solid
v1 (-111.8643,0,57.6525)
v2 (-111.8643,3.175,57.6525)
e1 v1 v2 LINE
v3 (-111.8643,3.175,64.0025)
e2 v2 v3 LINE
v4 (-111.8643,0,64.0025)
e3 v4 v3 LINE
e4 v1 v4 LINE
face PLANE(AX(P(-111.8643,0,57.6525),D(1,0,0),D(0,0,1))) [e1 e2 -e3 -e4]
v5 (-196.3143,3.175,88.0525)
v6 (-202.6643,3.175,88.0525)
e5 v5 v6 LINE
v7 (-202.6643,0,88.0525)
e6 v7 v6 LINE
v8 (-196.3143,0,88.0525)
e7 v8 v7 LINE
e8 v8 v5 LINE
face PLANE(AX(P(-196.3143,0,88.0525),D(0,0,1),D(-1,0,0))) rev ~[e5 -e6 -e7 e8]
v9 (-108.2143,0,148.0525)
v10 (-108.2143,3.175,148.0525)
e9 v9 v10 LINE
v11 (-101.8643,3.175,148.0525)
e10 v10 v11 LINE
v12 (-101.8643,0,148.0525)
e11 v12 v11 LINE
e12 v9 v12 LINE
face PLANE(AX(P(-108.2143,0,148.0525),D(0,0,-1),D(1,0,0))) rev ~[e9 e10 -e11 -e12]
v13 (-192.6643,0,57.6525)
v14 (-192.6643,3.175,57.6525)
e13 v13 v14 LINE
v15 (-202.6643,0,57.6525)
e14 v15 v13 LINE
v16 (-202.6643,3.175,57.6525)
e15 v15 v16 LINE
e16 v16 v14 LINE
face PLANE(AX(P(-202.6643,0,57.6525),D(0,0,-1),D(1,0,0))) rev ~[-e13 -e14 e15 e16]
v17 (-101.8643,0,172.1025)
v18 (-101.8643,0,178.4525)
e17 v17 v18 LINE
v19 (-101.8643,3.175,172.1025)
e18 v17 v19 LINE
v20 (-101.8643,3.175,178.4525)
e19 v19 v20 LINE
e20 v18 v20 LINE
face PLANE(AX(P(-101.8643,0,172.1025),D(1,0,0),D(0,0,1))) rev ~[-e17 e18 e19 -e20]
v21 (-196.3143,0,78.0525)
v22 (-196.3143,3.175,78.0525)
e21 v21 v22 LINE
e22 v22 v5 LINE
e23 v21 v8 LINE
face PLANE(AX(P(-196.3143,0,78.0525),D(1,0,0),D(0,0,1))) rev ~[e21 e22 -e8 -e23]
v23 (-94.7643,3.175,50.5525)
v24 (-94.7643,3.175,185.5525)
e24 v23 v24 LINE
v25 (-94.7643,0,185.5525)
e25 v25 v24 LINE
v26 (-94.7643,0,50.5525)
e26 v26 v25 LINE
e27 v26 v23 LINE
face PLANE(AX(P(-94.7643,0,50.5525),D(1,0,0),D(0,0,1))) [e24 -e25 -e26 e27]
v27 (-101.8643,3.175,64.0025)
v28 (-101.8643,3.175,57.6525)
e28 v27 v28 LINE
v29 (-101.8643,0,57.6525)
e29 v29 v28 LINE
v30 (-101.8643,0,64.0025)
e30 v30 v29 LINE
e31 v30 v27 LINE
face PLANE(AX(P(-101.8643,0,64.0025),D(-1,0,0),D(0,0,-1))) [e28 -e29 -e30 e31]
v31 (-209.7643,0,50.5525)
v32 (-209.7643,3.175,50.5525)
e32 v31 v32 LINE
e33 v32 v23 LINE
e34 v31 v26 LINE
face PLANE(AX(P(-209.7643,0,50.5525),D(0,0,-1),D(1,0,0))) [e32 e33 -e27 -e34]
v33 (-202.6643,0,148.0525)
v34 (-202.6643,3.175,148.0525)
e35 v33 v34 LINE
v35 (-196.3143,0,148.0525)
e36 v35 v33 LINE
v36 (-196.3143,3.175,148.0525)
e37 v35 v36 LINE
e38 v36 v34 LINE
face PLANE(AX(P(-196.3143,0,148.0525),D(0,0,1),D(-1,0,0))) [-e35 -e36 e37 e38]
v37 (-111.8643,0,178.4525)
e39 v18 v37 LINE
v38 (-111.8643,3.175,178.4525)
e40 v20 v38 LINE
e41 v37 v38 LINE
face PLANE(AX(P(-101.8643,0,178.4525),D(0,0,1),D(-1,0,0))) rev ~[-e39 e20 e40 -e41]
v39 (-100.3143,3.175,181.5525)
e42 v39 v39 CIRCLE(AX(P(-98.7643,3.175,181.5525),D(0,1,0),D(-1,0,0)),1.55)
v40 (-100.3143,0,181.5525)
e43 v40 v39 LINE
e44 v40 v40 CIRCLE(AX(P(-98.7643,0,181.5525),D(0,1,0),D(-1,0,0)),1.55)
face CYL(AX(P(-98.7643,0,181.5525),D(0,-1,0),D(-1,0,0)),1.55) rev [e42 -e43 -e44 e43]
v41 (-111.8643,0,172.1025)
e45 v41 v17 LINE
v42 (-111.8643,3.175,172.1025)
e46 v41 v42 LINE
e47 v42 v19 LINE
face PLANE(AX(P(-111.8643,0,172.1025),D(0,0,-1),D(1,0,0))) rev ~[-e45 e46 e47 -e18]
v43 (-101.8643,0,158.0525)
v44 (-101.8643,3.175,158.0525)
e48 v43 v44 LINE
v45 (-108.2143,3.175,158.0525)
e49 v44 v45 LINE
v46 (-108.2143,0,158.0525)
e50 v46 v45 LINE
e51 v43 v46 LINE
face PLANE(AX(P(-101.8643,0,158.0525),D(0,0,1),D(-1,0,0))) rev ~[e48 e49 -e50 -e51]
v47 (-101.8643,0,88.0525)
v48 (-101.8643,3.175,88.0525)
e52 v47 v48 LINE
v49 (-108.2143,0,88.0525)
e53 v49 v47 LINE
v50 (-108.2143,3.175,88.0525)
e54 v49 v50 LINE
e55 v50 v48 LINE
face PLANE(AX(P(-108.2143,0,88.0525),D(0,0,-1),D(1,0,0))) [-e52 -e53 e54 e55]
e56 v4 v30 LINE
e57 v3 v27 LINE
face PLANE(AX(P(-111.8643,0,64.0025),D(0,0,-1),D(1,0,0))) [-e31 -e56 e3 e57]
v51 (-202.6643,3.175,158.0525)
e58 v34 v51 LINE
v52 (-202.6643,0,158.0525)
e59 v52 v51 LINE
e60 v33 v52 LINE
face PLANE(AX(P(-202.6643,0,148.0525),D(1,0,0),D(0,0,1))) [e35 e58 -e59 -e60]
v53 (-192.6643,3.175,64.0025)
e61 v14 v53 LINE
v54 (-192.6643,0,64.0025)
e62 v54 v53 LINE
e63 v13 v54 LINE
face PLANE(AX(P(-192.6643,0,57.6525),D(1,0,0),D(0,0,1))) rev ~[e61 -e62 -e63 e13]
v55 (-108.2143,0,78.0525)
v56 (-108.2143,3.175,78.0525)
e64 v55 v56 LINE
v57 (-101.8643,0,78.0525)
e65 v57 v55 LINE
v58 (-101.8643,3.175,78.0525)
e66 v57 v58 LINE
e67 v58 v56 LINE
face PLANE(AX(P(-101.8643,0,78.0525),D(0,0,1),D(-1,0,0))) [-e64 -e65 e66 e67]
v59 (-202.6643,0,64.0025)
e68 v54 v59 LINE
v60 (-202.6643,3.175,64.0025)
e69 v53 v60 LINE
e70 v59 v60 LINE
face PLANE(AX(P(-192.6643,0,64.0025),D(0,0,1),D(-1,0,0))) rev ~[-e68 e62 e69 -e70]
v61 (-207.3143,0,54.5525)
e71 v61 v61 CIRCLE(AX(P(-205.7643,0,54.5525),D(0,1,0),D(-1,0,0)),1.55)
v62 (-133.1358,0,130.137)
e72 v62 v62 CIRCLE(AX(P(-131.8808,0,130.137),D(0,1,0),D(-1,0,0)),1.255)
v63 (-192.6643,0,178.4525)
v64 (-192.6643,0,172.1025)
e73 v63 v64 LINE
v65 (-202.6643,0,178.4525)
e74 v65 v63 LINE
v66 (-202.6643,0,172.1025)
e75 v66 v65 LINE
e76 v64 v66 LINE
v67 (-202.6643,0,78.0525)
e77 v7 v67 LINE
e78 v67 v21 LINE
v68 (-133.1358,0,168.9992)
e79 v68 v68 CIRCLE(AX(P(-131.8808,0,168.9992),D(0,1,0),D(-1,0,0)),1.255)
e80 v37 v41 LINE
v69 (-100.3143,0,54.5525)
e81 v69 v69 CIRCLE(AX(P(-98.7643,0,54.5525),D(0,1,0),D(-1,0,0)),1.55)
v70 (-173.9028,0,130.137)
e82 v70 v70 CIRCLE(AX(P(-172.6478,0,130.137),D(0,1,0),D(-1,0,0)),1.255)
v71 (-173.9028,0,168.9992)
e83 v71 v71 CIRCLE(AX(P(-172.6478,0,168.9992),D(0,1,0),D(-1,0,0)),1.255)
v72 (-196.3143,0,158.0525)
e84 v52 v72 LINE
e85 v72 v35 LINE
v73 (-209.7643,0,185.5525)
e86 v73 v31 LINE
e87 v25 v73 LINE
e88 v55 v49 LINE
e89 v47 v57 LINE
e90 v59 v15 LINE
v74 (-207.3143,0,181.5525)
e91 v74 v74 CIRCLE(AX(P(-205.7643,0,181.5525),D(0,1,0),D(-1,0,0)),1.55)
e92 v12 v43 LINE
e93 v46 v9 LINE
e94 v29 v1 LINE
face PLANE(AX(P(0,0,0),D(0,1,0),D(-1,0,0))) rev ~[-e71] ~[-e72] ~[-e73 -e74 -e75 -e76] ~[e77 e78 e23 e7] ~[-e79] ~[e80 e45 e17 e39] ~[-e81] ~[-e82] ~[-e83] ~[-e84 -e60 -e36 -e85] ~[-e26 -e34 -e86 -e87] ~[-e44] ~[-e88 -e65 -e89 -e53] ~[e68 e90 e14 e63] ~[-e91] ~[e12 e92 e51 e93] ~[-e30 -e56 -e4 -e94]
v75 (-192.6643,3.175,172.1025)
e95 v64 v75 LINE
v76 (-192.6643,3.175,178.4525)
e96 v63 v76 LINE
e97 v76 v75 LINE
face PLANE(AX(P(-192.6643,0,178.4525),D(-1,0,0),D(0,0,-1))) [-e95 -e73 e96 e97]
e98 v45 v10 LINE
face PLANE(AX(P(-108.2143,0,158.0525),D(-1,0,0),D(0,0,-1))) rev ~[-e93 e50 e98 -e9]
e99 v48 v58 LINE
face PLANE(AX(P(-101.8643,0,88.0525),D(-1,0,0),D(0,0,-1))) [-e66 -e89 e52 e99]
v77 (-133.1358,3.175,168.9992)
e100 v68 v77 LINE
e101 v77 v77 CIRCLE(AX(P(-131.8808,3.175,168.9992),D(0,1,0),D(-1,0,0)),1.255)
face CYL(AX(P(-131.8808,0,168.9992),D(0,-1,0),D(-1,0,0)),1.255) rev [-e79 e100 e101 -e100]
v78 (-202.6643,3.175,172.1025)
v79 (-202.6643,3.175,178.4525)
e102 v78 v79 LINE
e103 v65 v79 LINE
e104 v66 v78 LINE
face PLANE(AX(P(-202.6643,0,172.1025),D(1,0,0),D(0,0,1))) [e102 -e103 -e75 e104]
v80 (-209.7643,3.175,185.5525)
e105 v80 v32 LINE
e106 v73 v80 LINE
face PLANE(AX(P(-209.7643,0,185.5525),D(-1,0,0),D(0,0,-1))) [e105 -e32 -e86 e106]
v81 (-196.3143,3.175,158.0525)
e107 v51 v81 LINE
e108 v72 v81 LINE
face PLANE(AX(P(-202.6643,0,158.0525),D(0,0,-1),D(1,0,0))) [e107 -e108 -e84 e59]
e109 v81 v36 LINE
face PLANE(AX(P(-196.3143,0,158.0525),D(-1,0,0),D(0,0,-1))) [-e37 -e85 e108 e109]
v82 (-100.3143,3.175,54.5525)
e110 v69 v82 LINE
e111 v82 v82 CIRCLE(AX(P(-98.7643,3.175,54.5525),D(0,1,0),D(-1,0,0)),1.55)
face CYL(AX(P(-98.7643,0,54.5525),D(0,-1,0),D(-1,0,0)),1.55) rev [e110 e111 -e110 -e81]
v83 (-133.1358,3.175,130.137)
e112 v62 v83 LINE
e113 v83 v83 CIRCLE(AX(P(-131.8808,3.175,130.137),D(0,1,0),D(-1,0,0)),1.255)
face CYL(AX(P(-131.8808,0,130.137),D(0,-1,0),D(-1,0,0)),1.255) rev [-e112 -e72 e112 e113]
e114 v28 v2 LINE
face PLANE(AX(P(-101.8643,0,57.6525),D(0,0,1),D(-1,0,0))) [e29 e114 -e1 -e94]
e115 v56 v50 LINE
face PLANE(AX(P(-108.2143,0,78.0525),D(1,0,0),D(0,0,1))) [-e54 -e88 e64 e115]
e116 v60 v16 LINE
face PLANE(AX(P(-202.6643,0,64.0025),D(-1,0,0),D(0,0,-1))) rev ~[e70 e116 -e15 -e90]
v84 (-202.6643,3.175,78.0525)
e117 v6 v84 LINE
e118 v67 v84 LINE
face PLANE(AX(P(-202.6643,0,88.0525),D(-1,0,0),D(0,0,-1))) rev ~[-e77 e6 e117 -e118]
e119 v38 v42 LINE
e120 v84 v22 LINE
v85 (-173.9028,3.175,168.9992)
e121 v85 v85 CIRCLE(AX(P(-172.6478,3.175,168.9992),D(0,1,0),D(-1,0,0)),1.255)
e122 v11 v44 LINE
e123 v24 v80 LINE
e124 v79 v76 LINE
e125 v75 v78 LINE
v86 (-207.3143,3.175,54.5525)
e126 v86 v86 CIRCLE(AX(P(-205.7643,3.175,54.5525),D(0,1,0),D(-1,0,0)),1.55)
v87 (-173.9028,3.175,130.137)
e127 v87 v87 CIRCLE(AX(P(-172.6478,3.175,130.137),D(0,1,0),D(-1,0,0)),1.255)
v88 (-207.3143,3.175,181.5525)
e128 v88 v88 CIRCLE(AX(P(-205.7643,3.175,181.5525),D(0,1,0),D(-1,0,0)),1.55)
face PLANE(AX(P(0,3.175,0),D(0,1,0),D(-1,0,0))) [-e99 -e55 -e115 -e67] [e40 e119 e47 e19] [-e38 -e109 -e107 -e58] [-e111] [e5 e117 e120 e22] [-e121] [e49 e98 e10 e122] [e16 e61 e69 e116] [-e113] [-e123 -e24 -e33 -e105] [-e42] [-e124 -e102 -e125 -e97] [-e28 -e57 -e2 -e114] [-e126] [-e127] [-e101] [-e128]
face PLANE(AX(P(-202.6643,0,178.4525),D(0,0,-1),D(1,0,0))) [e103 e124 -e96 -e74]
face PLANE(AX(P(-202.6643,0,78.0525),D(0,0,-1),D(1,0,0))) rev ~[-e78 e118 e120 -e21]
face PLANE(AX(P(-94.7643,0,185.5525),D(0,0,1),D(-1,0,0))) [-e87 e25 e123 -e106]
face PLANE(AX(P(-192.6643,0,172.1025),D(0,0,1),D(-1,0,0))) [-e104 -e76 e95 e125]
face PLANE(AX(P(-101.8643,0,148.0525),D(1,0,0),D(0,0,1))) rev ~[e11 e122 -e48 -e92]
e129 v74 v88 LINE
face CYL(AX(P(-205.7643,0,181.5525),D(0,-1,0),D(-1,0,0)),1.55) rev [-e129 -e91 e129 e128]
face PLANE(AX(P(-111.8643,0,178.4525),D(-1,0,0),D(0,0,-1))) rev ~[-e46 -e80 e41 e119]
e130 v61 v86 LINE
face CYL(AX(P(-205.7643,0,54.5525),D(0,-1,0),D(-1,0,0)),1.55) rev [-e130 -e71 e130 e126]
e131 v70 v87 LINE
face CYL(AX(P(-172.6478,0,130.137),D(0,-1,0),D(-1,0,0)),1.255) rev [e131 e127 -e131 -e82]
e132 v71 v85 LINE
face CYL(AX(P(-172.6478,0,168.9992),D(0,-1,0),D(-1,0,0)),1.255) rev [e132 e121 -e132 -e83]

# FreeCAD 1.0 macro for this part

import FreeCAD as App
import Part
import Sketcher

doc = App.newDocument("Part")
body = doc.addObject("PartDesign::Body", "Body")

# Sketch on XZ plane
sketch1 = body.newObject("Sketcher::SketchObject", "Sketch")
sketch1.AttachmentSupport = (doc.getObject("XZ_Plane"), [""])
sketch1.MapMode = "FlatFace"
sketch1.addGeometry(Part.LineSegment(App.Vector(-94.8, 50.6, 0), App.Vector(-209.8, 50.6, 0)), False)
sketch1.addGeometry(Part.LineSegment(App.Vector(-209.8, 50.6, 0), App.Vector(-209.8, 185.6, 0)), False)
sketch1.addGeometry(Part.LineSegment(App.Vector(-209.8, 185.6, 0), App.Vector(-94.8, 185.6, 0)), False)
sketch1.addGeometry(Part.LineSegment(App.Vector(-94.8, 185.6, 0), App.Vector(-94.8, 50.6, 0)), False)
sketch1.addGeometry(Part.Circle(App.Vector(-98.8, 54.6, 0), App.Vector(0, 0, 1), 1.6), False)
sketch1.addGeometry(Part.LineSegment(App.Vector(-101.9, 64, 0), App.Vector(-111.9, 64, 0)), False)
sketch1.addGeometry(Part.LineSegment(App.Vector(-111.9, 64, 0), App.Vector(-111.9, 57.7, 0)), False)
sketch1.addGeometry(Part.LineSegment(App.Vector(-111.9, 57.7, 0), App.Vector(-101.9, 57.7, 0)), False)
sketch1.addGeometry(Part.LineSegment(App.Vector(-101.9, 57.7, 0), App.Vector(-101.9, 64, 0)), False)
sketch1.addGeometry(Part.LineSegment(App.Vector(-101.9, 88.1, 0), App.Vector(-108.2, 88.1, 0)), False)
sketch1.addGeometry(Part.LineSegment(App.Vector(-108.2, 88.1, 0), App.Vector(-108.2, 78.1, 0)), False)
sketch1.addGeometry(Part.LineSegment(App.Vector(-108.2, 78.1, 0), App.Vector(-101.9, 78.1, 0)), False)
sketch1.addGeometry(Part.LineSegment(App.Vector(-101.9, 78.1, 0), App.Vector(-101.9, 88.1, 0)), False)
sketch1.addGeometry(Part.Circle(App.Vector(-205.8, 54.6, 0), App.Vector(0, 0, 1), 1.6), False)
sketch1.addGeometry(Part.LineSegment(App.Vector(-192.7, 57.7, 0), App.Vector(-192.7, 64, 0)), False)
sketch1.addGeometry(Part.LineSegment(App.Vector(-192.7, 64, 0), App.Vector(-202.7, 64, 0)), False)
sketch1.addGeometry(Part.LineSegment(App.Vector(-202.7, 64, 0), App.Vector(-202.7, 57.7, 0)), False)
sketch1.addGeometry(Part.LineSegment(App.Vector(-202.7, 57.7, 0), App.Vector(-192.7, 57.7, 0)), False)
sketch1.addGeometry(Part.LineSegment(App.Vector(-202.7, 78.1, 0), App.Vector(-196.3, 78.1, 0)), False)
sketch1.addGeometry(Part.LineSegment(App.Vector(-196.3, 78.1, 0), App.Vector(-196.3, 88.1, 0)), False)
sketch1.addGeometry(Part.LineSegment(App.Vector(-196.3, 88.1, 0), App.Vector(-202.7, 88.1, 0)), False)
sketch1.addGeometry(Part.LineSegment(App.Vector(-202.7, 88.1, 0), App.Vector(-202.7, 78.1, 0)), False)
sketch1.addGeometry(Part.Circle(App.Vector(-131.9, 130.1, 0), App.Vector(0, 0, 1), 1.3), False)
sketch1.addGeometry(Part.LineSegment(App.Vector(-101.9, 148.1, 0), App.Vector(-101.9, 158.1, 0)), False)
sketch1.addGeometry(Part.LineSegment(App.Vector(-101.9, 158.1, 0), App.Vector(-108.2, 158.1, 0)), False)
sketch1.addGeometry(Part.LineSegment(App.Vector(-108.2, 158.1, 0), App.Vector(-108.2, 148.1, 0)), False)
sketch1.addGeometry(Part.LineSegment(App.Vector(-108.2, 148.1, 0), App.Vector(-101.9, 148.1, 0)), False)
sketch1.addGeometry(Part.LineSegment(App.Vector(-111.9, 178.5, 0), App.Vector(-111.9, 172.1, 0)), False)
sketch1.addGeometry(Part.LineSegment(App.Vector(-111.9, 172.1, 0), App.Vector(-101.9, 172.1, 0)), False)
sketch1.addGeometry(Part.LineSegment(App.Vector(-101.9, 172.1, 0), App.Vector(-101.9, 178.5, 0)), False)
sketch1.addGeometry(Part.LineSegment(App.Vector(-101.9, 178.5, 0), App.Vector(-111.9, 178.5, 0)), False)
sketch1.addGeometry(Part.Circle(App.Vector(-98.8, 181.6, 0), App.Vector(0, 0, 1), 1.6), False)
sketch1.addGeometry(Part.Circle(App.Vector(-131.9, 169, 0), App.Vector(0, 0, 1), 1.3), False)
sketch1.addGeometry(Part.Circle(App.Vector(-172.6, 130.1, 0), App.Vector(0, 0, 1), 1.3), False)
sketch1.addGeometry(Part.Circle(App.Vector(-172.6, 169, 0), App.Vector(0, 0, 1), 1.3), False)
sketch1.addGeometry(Part.LineSegment(App.Vector(-202.7, 148.1, 0), App.Vector(-196.3, 148.1, 0)), False)
sketch1.addGeometry(Part.LineSegment(App.Vector(-196.3, 148.1, 0), App.Vector(-196.3, 158.1, 0)), False)
sketch1.addGeometry(Part.LineSegment(App.Vector(-196.3, 158.1, 0), App.Vector(-202.7, 158.1, 0)), False)
sketch1.addGeometry(Part.LineSegment(App.Vector(-202.7, 158.1, 0), App.Vector(-202.7, 148.1, 0)), False)
sketch1.addGeometry(Part.LineSegment(App.Vector(-202.7, 172.1, 0), App.Vector(-192.7, 172.1, 0)), False)
sketch1.addGeometry(Part.LineSegment(App.Vector(-192.7, 172.1, 0), App.Vector(-192.7, 178.5, 0)), False)
sketch1.addGeometry(Part.LineSegment(App.Vector(-192.7, 178.5, 0), App.Vector(-202.7, 178.5, 0)), False)
sketch1.addGeometry(Part.LineSegment(App.Vector(-202.7, 178.5, 0), App.Vector(-202.7, 172.1, 0)), False)
sketch1.addGeometry(Part.Circle(App.Vector(-205.8, 181.6, 0), App.Vector(0, 0, 1), 1.6), False)
sketch1.addConstraint(Sketcher.Constraint("Coincident", 0, 2, 1, 1))
sketch1.addConstraint(Sketcher.Constraint("Coincident", 1, 2, 2, 1))
sketch1.addConstraint(Sketcher.Constraint("Coincident", 2, 2, 3, 1))
sketch1.addConstraint(Sketcher.Constraint("Coincident", 3, 2, 0, 1))
sketch1.addConstraint(Sketcher.Constraint("Coincident", 5, 2, 6, 1))
sketch1.addConstraint(Sketcher.Constraint("Coincident", 6, 2, 7, 1))
sketch1.addConstraint(Sketcher.Constraint("Coincident", 7, 2, 8, 1))
sketch1.addConstraint(Sketcher.Constraint("Coincident", 8, 2, 5, 1))
sketch1.addConstraint(Sketcher.Constraint("Coincident", 9, 2, 10, 1))
sketch1.addConstraint(Sketcher.Constraint("Coincident", 10, 2, 11, 1))
sketch1.addConstraint(Sketcher.Constraint("Coincident", 11, 2, 12, 1))
sketch1.addConstraint(Sketcher.Constraint("Coincident", 12, 2, 9, 1))
sketch1.addConstraint(Sketcher.Constraint("Coincident", 14, 2, 15, 1))
sketch1.addConstraint(Sketcher.Constraint("Coincident", 15, 2, 16, 1))
sketch1.addConstraint(Sketcher.Constraint("Coincident", 16, 2, 17, 1))
sketch1.addConstraint(Sketcher.Constraint("Coincident", 17, 2, 14, 1))
sketch1.addConstraint(Sketcher.Constraint("Coincident", 18, 2, 19, 1))
sketch1.addConstraint(Sketcher.Constraint("Coincident", 19, 2, 20, 1))
sketch1.addConstraint(Sketcher.Constraint("Coincident", 20, 2, 21, 1))
sketch1.addConstraint(Sketcher.Constraint("Coincident", 21, 2, 18, 1))
sketch1.addConstraint(Sketcher.Constraint("Coincident", 23, 2, 24, 1))
sketch1.addConstraint(Sketcher.Constraint("Coincident", 24, 2, 25, 1))
sketch1.addConstraint(Sketcher.Constraint("Coincident", 25, 2, 26, 1))
sketch1.addConstraint(Sketcher.Constraint("Coincident", 26, 2, 23, 1))
sketch1.addConstraint(Sketcher.Constraint("Coincident", 27, 2, 28, 1))
sketch1.addConstraint(Sketcher.Constraint("Coincident", 28, 2, 29, 1))
sketch1.addConstraint(Sketcher.Constraint("Coincident", 29, 2, 30, 1))
sketch1.addConstraint(Sketcher.Constraint("Coincident", 30, 2, 27, 1))
sketch1.addConstraint(Sketcher.Constraint("Coincident", 35, 2, 36, 1))
sketch1.addConstraint(Sketcher.Constraint("Coincident", 36, 2, 37, 1))
sketch1.addConstraint(Sketcher.Constraint("Coincident", 37, 2, 38, 1))
sketch1.addConstraint(Sketcher.Constraint("Coincident", 38, 2, 35, 1))
sketch1.addConstraint(Sketcher.Constraint("Coincident", 39, 2, 40, 1))
sketch1.addConstraint(Sketcher.Constraint("Coincident", 40, 2, 41, 1))
sketch1.addConstraint(Sketcher.Constraint("Coincident", 41, 2, 42, 1))
sketch1.addConstraint(Sketcher.Constraint("Coincident", 42, 2, 39, 1))
sketch1.addConstraint(Sketcher.Constraint("Horizontal", 0))
sketch1.addConstraint(Sketcher.Constraint("Vertical", 1))
sketch1.addConstraint(Sketcher.Constraint("Horizontal", 2))
sketch1.addConstraint(Sketcher.Constraint("Vertical", 3))
sketch1.addConstraint(Sketcher.Constraint("Horizontal", 5))
sketch1.addConstraint(Sketcher.Constraint("Vertical", 6))
sketch1.addConstraint(Sketcher.Constraint("Horizontal", 7))
sketch1.addConstraint(Sketcher.Constraint("Vertical", 8))
sketch1.addConstraint(Sketcher.Constraint("Horizontal", 9))
sketch1.addConstraint(Sketcher.Constraint("Vertical", 10))
sketch1.addConstraint(Sketcher.Constraint("Horizontal", 11))
sketch1.addConstraint(Sketcher.Constraint("Vertical", 12))
sketch1.addConstraint(Sketcher.Constraint("Vertical", 14))
sketch1.addConstraint(Sketcher.Constraint("Horizontal", 15))
sketch1.addConstraint(Sketcher.Constraint("Vertical", 16))
sketch1.addConstraint(Sketcher.Constraint("Horizontal", 17))
sketch1.addConstraint(Sketcher.Constraint("Horizontal", 18))
sketch1.addConstraint(Sketcher.Constraint("Vertical", 19))
sketch1.addConstraint(Sketcher.Constraint("Horizontal", 20))
sketch1.addConstraint(Sketcher.Constraint("Vertical", 21))
sketch1.addConstraint(Sketcher.Constraint("Vertical", 23))
sketch1.addConstraint(Sketcher.Constraint("Horizontal", 24))
sketch1.addConstraint(Sketcher.Constraint("Vertical", 25))
sketch1.addConstraint(Sketcher.Constraint("Horizontal", 26))
sketch1.addConstraint(Sketcher.Constraint("Vertical", 27))
sketch1.addConstraint(Sketcher.Constraint("Horizontal", 28))
sketch1.addConstraint(Sketcher.Constraint("Vertical", 29))
sketch1.addConstraint(Sketcher.Constraint("Horizontal", 30))
sketch1.addConstraint(Sketcher.Constraint("Horizontal", 35))
sketch1.addConstraint(Sketcher.Constraint("Vertical", 36))
sketch1.addConstraint(Sketcher.Constraint("Horizontal", 37))
sketch1.addConstraint(Sketcher.Constraint("Vertical", 38))
sketch1.addConstraint(Sketcher.Constraint("Horizontal", 39))
sketch1.addConstraint(Sketcher.Constraint("Vertical", 40))
sketch1.addConstraint(Sketcher.Constraint("Horizontal", 41))
sketch1.addConstraint(Sketcher.Constraint("Vertical", 42))
sketch1.addConstraint(Sketcher.Constraint("Equal", 4, 13))
sketch1.addConstraint(Sketcher.Constraint("Equal", 13, 31))
sketch1.addConstraint(Sketcher.Constraint("Equal", 22, 32))
sketch1.addConstraint(Sketcher.Constraint("Equal", 32, 33))
sketch1.addConstraint(Sketcher.Constraint("Equal", 33, 34))
sketch1.addConstraint(Sketcher.Constraint("Equal", 31, 43))
sketch1.addConstraint(Sketcher.Constraint("Horizontal", 4, 3, 13, 3))
sketch1.addConstraint(Sketcher.Constraint("Horizontal", 22, 3, 33, 3))
sketch1.addConstraint(Sketcher.Constraint("Horizontal", 32, 3, 34, 3))
sketch1.addConstraint(Sketcher.Constraint("Horizontal", 31, 3, 43, 3))
sketch1.addConstraint(Sketcher.Constraint("Horizontal", 8, 2, 14, 2))
sketch1.addConstraint(Sketcher.Constraint("Horizontal", 7, 2, 16, 2))
sketch1.addConstraint(Sketcher.Constraint("Horizontal", 11, 2, 18, 2))
sketch1.addConstraint(Sketcher.Constraint("Horizontal", 12, 2, 19, 2))
sketch1.addConstraint(Sketcher.Constraint("Horizontal", 26, 2, 35, 2))
sketch1.addConstraint(Sketcher.Constraint("Horizontal", 24, 2, 36, 2))
sketch1.addConstraint(Sketcher.Constraint("Horizontal", 28, 2, 39, 2))
sketch1.addConstraint(Sketcher.Constraint("Horizontal", 30, 2, 40, 2))
sketch1.addConstraint(Sketcher.Constraint("Vertical", 4, 3, 31, 3))
sketch1.addConstraint(Sketcher.Constraint("Vertical", 22, 3, 32, 3))
sketch1.addConstraint(Sketcher.Constraint("Vertical", 33, 3, 34, 3))
sketch1.addConstraint(Sketcher.Constraint("Vertical", 13, 3, 43, 3))
sketch1.addConstraint(Sketcher.Constraint("Vertical", 8, 2, 11, 2))
sketch1.addConstraint(Sketcher.Constraint("Vertical", 16, 2, 20, 2))
sketch1.addConstraint(Sketcher.Constraint("Vertical", 12, 2, 23, 2))
sketch1.addConstraint(Sketcher.Constraint("Vertical", 10, 2, 24, 2))
sketch1.addConstraint(Sketcher.Constraint("Vertical", 6, 2, 27, 2))
sketch1.addConstraint(Sketcher.Constraint("Vertical", 26, 2, 28, 2))
sketch1.addConstraint(Sketcher.Constraint("Vertical", 19, 2, 35, 2))
sketch1.addConstraint(Sketcher.Constraint("Vertical", 21, 2, 37, 2))
sketch1.addConstraint(Sketcher.Constraint("Vertical", 17, 2, 39, 2))
sketch1.addConstraint(Sketcher.Constraint("Vertical", 38, 2, 41, 2))
sketch1.addConstraint(Sketcher.Constraint("Equal", 7, 15))
sketch1.addConstraint(Sketcher.Constraint("Equal", 11, 18))
sketch1.addConstraint(Sketcher.Constraint("Equal", 37, 6))
sketch1.addConstraint(Sketcher.Constraint("Equal", 41, 10))
sketch1.addConstraint(Sketcher.Constraint("Equal", 21, 23))
sketch1.addConstraint(Sketcher.Constraint("Equal", 16, 27))
sketch1.addConstraint(Sketcher.Constraint("Diameter", 4, 3.1))
sketch1.addConstraint(Sketcher.Constraint("Diameter", 22, 2.51))
sketch1.addConstraint(Sketcher.Constraint("DistanceX", 0, 2, 0, 1, 115.0))
sketch1.addConstraint(Sketcher.Constraint("DistanceX", 5, 2, 5, 1, 10.0))
sketch1.addConstraint(Sketcher.Constraint("DistanceY", 1, 1, 1, 2, 135.0))
sketch1.addConstraint(Sketcher.Constraint("DistanceX", 0, 2, 13, 3, 4.0))
sketch1.addConstraint(Sketcher.Constraint("DistanceY", 0, 2, 13, 3, 4.0))
sketch1.addConstraint(Sketcher.Constraint("DistanceY", 43, 3, 1, 2, 4.0))
sketch1.addConstraint(Sketcher.Constraint("DistanceX", 31, 3, 2, 2, 4.0))
sketch1.addConstraint(Sketcher.Constraint("DistanceX", 9, 2, 9, 1, 6.35))
sketch1.addConstraint(Sketcher.Constraint("DistanceY", 4, 3, 6, 2, 3.1))
sketch1.addConstraint(Sketcher.Constraint("DistanceX", 7, 2, 4, 3, 3.1))
sketch1.addConstraint(Sketcher.Constraint("DistanceX", 13, 3, 15, 2, 3.1))
sketch1.addConstraint(Sketcher.Constraint("DistanceY", 23, 2, 2, 2, 27.5))
sketch1.addConstraint(Sketcher.Constraint("DistanceY", 29, 2, 31, 3, 3.1))
sketch1.addConstraint(Sketcher.Constraint("DistanceX", 33, 3, 22, 3, 40.767))
sketch1.addConstraint(Sketcher.Constraint("DistanceY", 12, 2, 23, 2, 70.0))
sketch1.addConstraint(Sketcher.Constraint("DistanceY", -1, 1, 22, 3, 130.137))
sketch1.addConstraint(Sketcher.Constraint("DistanceX", 4, 3, -1, 1, 98.7643))
sketch1.addConstraint(Sketcher.Constraint("DistanceY", -1, 1, 4, 3, 54.5525))
sketch1.addConstraint(Sketcher.Constraint("DistanceX", 22, 3, -1, 1, 131.8808))
sketch1.addConstraint(Sketcher.Constraint("DistanceY", -1, 1, 32, 3, 168.9992))
pad1 = body.newObject("PartDesign::Pad", "Pad")
pad1.Profile = sketch1
pad1.Length = 3.175
pad1.Reversed = True

doc.recompute()
